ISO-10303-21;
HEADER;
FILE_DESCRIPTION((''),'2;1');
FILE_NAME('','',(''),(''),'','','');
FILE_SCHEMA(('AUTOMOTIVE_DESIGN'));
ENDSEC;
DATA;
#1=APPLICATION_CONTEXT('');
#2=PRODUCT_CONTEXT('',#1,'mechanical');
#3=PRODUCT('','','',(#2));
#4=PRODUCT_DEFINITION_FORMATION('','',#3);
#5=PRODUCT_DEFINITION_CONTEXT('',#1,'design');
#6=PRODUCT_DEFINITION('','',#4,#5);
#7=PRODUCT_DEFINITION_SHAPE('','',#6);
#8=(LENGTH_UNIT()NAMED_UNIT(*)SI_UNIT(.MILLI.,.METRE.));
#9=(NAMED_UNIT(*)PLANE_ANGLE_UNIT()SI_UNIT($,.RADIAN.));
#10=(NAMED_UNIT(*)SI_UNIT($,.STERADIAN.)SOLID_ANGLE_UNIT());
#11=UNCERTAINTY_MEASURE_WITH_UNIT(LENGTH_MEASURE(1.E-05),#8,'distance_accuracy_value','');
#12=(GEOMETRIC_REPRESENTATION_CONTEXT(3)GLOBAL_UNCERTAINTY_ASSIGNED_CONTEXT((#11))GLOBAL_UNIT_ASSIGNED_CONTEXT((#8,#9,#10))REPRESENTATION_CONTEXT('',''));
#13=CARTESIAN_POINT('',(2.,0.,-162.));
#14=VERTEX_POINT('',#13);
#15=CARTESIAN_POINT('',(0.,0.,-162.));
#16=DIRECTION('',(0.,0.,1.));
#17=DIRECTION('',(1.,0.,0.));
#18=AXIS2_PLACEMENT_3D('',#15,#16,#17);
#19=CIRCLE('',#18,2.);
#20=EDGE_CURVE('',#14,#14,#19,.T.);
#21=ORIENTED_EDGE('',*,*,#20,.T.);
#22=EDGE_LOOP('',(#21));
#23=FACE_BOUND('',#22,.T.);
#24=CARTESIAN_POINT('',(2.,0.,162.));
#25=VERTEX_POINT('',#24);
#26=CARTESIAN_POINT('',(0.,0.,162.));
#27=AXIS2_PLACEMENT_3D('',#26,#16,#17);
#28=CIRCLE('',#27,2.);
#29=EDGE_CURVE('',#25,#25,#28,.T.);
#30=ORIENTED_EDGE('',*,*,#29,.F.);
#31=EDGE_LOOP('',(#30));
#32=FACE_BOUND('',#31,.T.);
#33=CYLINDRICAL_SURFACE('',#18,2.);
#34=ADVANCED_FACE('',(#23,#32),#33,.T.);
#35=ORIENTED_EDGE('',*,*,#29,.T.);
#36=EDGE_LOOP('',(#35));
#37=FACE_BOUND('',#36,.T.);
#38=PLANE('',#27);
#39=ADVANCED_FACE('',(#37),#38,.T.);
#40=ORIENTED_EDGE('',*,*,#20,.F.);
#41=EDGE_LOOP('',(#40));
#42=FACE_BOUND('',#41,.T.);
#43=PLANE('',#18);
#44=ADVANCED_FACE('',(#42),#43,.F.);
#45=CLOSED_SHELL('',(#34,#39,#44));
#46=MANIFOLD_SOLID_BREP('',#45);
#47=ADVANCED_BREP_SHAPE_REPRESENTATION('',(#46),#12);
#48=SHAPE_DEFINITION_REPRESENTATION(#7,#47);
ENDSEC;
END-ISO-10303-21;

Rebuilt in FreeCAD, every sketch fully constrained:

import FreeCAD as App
import Part
import Sketcher

V = App.Vector
Q = App.Units.Quantity

doc = App.newDocument("Part")
params = doc.addObject("Spreadsheet::Sheet", "Params")
for row, (alias, value) in enumerate([
    ("sketch1_diameter", "4 mm"),
    ("pad1_length", "162 mm"),
    ("pad1_length2", "162 mm"),
], start=1):
    params.set(f"A{row}", alias)
    params.set(f"B{row}", "=" + value)
    params.setAlias(f"B{row}", alias)

body = doc.addObject("PartDesign::Body", "Body")

sketch1 = doc.addObject("Sketcher::SketchObject", "Sketch")
body.addObject(sketch1)
sketch1.AttachmentSupport = (doc.XY_Plane, [""])
sketch1.MapMode = "FlatFace"
sketch1.addGeometry(Part.Circle(V(0, 0, 0), V(0, 0, 1), 2), False)
sketch1.addConstraint([
    Sketcher.Constraint("Coincident", 0, 3, -1, 1),
    Sketcher.Constraint("Diameter", 0, Q("4 mm")),
])
sketch1.setExpression("Constraints[1]", "Params.sketch1_diameter")
pad1 = doc.addObject("PartDesign::Pad", "Pad")
body.addObject(pad1)
pad1.Profile = sketch1
pad1.Type = "TwoLengths"
pad1.setExpression("Length", "Params.pad1_length")
pad1.setExpression("Length2", "Params.pad1_length2")

doc.recompute()
